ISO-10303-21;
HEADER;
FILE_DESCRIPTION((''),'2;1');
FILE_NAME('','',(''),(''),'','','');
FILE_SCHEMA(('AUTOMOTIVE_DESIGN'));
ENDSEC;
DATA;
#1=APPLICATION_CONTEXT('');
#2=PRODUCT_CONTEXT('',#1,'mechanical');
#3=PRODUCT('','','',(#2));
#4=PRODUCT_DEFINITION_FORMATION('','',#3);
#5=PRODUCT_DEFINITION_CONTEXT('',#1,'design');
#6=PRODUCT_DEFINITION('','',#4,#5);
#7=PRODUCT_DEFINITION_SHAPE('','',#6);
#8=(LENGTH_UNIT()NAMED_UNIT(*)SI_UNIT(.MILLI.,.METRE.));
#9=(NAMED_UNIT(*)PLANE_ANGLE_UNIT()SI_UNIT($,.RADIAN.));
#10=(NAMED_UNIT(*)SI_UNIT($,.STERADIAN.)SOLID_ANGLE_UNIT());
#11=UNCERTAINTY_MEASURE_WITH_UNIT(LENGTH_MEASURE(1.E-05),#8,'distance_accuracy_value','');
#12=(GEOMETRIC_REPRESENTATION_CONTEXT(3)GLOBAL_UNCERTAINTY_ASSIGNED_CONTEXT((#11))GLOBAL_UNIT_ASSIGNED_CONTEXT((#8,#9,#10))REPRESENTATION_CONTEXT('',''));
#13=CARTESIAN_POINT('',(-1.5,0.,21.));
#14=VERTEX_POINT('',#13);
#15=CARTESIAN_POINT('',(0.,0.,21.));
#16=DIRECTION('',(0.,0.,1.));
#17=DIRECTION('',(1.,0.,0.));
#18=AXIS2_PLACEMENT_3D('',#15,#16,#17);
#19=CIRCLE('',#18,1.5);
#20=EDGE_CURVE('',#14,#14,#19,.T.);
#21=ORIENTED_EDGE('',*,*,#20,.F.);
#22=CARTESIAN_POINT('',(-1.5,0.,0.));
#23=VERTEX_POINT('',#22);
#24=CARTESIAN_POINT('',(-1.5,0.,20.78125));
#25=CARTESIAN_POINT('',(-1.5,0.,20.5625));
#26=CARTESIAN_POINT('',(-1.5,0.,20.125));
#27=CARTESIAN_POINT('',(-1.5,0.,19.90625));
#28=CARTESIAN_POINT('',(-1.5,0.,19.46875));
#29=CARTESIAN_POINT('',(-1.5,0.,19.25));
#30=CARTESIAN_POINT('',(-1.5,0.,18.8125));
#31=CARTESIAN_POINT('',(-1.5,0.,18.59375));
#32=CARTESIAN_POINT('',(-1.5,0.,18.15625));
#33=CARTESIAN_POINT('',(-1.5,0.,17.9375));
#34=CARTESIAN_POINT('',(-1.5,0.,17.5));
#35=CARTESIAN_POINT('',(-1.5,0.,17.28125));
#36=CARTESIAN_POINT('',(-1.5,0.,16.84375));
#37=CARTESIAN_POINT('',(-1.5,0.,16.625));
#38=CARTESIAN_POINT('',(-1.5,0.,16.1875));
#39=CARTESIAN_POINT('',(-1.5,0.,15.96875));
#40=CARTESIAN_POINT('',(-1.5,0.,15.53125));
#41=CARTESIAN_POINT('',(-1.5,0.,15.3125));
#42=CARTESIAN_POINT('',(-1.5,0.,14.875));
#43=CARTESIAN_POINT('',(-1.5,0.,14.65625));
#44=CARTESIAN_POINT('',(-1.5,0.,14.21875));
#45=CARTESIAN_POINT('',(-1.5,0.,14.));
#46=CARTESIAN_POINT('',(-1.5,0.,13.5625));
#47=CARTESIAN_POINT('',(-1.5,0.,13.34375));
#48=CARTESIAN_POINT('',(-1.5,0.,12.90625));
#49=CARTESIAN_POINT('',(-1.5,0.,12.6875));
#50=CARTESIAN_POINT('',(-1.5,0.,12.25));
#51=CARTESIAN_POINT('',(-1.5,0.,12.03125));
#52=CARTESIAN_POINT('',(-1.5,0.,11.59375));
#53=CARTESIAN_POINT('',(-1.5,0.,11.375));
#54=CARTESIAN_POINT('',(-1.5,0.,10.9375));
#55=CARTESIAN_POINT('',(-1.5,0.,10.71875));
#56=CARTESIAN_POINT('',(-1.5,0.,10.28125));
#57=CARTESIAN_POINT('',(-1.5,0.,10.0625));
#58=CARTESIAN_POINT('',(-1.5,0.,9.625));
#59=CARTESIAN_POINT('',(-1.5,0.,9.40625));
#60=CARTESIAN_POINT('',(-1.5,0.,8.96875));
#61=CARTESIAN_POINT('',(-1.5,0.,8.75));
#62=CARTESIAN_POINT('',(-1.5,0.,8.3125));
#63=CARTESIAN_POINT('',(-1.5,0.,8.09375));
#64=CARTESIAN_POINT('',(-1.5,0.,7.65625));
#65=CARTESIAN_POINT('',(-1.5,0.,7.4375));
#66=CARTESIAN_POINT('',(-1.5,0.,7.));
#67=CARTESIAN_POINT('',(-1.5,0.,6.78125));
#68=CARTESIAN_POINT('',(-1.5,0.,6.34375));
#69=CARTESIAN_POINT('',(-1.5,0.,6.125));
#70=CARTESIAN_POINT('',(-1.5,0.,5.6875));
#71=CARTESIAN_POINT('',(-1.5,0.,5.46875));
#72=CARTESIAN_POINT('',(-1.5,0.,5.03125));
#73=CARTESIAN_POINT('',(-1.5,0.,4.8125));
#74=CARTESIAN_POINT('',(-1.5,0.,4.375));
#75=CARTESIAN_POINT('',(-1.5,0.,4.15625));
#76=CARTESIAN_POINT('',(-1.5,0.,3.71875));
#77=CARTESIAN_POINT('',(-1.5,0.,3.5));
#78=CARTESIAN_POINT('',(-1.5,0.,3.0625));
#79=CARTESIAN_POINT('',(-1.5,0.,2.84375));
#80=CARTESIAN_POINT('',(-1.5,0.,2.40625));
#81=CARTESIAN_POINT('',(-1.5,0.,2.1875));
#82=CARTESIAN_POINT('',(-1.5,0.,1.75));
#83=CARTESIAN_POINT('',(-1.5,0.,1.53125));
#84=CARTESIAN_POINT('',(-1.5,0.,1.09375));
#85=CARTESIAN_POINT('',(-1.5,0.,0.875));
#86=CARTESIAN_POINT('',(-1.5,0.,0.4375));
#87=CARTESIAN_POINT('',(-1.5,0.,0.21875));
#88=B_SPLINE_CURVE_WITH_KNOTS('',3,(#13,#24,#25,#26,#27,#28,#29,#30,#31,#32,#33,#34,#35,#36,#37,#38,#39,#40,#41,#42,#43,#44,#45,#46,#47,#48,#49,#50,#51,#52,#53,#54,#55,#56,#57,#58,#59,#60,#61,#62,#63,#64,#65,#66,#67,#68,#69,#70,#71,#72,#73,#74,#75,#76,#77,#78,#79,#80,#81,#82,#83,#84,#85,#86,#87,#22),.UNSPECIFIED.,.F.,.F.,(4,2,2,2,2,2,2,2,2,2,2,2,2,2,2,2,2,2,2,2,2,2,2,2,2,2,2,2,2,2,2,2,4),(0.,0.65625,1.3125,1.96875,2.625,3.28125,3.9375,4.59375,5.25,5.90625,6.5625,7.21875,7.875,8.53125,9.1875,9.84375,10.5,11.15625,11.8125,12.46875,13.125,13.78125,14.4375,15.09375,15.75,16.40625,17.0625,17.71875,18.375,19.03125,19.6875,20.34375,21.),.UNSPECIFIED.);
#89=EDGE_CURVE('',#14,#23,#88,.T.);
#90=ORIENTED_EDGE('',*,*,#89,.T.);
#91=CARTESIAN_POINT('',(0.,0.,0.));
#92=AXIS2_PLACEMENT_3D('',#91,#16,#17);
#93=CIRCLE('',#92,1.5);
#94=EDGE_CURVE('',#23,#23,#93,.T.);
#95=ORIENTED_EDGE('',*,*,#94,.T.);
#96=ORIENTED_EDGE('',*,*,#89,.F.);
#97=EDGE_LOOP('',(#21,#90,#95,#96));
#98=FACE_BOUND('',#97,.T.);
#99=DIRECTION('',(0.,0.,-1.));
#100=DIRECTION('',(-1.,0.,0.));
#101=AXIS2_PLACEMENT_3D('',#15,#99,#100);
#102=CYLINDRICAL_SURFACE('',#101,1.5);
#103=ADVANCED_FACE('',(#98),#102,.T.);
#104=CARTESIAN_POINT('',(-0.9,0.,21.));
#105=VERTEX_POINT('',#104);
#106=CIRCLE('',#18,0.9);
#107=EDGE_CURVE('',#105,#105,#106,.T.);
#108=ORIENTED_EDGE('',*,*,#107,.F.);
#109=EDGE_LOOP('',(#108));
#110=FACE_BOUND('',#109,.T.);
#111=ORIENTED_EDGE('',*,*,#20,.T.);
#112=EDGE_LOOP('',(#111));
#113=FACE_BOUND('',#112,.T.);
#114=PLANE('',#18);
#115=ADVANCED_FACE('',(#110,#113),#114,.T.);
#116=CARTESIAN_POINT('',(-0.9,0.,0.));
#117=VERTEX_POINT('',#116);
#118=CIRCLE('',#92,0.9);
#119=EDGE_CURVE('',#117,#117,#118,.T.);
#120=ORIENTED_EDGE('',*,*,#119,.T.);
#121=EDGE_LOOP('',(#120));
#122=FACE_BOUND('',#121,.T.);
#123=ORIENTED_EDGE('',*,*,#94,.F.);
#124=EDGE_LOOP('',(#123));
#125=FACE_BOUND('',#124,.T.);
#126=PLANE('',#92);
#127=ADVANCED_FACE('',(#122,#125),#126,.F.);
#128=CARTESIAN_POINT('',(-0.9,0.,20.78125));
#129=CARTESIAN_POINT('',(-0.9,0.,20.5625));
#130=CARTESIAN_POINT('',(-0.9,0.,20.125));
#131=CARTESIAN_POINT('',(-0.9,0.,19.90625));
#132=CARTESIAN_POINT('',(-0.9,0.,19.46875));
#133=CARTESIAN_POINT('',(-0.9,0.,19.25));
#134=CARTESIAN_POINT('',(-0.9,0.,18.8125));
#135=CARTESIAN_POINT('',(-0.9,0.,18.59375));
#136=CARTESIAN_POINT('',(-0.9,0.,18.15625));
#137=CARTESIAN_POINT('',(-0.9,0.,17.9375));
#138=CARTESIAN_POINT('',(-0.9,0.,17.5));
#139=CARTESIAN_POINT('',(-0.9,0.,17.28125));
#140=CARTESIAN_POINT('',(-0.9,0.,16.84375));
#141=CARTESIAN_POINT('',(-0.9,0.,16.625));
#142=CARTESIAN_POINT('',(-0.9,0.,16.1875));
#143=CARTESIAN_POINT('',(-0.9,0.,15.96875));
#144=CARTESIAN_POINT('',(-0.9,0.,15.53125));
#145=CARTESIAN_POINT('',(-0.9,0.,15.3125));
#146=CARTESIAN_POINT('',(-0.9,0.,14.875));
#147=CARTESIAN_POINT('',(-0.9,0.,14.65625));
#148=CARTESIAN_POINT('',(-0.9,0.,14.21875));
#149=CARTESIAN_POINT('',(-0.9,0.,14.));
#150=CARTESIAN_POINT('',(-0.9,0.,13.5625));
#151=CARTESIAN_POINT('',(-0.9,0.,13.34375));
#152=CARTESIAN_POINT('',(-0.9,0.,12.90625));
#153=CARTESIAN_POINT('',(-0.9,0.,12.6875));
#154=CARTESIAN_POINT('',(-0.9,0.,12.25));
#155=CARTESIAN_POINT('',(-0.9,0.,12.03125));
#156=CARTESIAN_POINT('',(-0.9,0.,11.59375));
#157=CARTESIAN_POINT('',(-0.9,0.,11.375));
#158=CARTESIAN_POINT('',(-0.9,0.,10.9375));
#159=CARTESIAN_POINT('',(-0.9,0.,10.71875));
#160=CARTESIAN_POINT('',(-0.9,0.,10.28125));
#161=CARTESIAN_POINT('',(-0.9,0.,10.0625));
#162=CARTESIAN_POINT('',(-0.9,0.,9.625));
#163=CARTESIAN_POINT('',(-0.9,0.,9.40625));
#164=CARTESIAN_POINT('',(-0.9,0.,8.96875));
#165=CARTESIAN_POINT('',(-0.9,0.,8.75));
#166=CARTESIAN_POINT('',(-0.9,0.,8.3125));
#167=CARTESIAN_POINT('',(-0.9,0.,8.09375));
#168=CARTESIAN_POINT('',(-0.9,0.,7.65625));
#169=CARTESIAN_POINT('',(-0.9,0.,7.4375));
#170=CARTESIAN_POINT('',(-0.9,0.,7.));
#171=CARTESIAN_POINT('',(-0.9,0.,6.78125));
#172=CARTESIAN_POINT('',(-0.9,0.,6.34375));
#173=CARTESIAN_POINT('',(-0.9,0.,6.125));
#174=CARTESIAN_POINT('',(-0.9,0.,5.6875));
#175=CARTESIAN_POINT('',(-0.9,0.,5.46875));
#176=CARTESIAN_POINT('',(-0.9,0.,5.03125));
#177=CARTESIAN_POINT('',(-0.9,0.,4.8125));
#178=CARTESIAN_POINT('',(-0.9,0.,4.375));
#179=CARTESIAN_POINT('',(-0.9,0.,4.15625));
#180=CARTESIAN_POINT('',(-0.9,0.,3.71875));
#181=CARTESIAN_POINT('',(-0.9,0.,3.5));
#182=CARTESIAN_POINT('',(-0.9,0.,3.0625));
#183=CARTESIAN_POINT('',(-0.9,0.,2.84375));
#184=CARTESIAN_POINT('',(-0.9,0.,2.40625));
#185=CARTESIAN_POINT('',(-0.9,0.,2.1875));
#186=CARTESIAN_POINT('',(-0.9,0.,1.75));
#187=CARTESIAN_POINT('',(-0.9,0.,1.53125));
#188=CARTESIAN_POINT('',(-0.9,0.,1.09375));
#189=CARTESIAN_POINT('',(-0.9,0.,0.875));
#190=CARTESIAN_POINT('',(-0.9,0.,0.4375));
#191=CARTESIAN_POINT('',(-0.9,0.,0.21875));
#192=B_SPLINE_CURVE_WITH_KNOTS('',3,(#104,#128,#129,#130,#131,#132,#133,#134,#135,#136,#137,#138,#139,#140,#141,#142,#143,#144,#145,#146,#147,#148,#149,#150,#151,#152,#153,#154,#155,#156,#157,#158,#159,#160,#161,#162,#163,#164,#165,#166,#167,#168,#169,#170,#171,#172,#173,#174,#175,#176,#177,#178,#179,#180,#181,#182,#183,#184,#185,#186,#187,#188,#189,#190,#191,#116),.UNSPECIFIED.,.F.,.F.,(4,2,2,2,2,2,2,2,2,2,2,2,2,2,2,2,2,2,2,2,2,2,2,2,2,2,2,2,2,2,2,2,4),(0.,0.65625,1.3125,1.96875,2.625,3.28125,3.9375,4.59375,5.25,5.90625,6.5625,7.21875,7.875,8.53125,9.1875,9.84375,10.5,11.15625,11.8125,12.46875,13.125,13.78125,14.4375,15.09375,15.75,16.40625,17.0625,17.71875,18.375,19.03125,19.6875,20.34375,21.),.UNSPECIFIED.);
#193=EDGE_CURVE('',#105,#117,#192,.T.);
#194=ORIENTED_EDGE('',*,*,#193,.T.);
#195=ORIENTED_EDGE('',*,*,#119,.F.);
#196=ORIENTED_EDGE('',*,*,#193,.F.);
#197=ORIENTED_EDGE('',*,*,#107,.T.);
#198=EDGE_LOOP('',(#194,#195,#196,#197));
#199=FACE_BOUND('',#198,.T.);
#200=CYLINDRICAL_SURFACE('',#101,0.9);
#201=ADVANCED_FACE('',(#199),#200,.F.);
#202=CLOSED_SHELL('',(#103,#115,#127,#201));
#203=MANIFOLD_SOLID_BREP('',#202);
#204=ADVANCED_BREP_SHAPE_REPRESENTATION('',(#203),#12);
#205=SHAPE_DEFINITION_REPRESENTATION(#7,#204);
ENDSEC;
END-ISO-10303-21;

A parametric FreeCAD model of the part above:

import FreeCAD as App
import Part
import Sketcher
from FreeCAD import Vector

doc = App.newDocument("Part")
body = doc.addObject("PartDesign::Body", "Body")

sketch1 = body.newObject("Sketcher::SketchObject", "Sketch")
sketch1.AttachmentSupport = (doc.getObject("XY_Plane"), [""])
sketch1.MapMode = "FlatFace"
sketch1.addGeometry(Part.Circle(Vector(0, 0, 0), Vector(0, 0, 1), 1.5), False)
sketch1.addGeometry(Part.Circle(Vector(0, 0, 0), Vector(0, 0, 1), 0.9), False)
sketch1.addConstraint(Sketcher.Constraint("Coincident", 0, 3, -1, 1))
sketch1.addConstraint(Sketcher.Constraint("Coincident", 1, 3, -1, 1))
sketch1.addConstraint(Sketcher.Constraint("Diameter", 0, 3.0))
sketch1.addConstraint(Sketcher.Constraint("Diameter", 1, 1.8))
pad1 = body.newObject("PartDesign::Pad", "Pad")
pad1.Profile = sketch1
pad1.Length = 21

doc.recompute()
